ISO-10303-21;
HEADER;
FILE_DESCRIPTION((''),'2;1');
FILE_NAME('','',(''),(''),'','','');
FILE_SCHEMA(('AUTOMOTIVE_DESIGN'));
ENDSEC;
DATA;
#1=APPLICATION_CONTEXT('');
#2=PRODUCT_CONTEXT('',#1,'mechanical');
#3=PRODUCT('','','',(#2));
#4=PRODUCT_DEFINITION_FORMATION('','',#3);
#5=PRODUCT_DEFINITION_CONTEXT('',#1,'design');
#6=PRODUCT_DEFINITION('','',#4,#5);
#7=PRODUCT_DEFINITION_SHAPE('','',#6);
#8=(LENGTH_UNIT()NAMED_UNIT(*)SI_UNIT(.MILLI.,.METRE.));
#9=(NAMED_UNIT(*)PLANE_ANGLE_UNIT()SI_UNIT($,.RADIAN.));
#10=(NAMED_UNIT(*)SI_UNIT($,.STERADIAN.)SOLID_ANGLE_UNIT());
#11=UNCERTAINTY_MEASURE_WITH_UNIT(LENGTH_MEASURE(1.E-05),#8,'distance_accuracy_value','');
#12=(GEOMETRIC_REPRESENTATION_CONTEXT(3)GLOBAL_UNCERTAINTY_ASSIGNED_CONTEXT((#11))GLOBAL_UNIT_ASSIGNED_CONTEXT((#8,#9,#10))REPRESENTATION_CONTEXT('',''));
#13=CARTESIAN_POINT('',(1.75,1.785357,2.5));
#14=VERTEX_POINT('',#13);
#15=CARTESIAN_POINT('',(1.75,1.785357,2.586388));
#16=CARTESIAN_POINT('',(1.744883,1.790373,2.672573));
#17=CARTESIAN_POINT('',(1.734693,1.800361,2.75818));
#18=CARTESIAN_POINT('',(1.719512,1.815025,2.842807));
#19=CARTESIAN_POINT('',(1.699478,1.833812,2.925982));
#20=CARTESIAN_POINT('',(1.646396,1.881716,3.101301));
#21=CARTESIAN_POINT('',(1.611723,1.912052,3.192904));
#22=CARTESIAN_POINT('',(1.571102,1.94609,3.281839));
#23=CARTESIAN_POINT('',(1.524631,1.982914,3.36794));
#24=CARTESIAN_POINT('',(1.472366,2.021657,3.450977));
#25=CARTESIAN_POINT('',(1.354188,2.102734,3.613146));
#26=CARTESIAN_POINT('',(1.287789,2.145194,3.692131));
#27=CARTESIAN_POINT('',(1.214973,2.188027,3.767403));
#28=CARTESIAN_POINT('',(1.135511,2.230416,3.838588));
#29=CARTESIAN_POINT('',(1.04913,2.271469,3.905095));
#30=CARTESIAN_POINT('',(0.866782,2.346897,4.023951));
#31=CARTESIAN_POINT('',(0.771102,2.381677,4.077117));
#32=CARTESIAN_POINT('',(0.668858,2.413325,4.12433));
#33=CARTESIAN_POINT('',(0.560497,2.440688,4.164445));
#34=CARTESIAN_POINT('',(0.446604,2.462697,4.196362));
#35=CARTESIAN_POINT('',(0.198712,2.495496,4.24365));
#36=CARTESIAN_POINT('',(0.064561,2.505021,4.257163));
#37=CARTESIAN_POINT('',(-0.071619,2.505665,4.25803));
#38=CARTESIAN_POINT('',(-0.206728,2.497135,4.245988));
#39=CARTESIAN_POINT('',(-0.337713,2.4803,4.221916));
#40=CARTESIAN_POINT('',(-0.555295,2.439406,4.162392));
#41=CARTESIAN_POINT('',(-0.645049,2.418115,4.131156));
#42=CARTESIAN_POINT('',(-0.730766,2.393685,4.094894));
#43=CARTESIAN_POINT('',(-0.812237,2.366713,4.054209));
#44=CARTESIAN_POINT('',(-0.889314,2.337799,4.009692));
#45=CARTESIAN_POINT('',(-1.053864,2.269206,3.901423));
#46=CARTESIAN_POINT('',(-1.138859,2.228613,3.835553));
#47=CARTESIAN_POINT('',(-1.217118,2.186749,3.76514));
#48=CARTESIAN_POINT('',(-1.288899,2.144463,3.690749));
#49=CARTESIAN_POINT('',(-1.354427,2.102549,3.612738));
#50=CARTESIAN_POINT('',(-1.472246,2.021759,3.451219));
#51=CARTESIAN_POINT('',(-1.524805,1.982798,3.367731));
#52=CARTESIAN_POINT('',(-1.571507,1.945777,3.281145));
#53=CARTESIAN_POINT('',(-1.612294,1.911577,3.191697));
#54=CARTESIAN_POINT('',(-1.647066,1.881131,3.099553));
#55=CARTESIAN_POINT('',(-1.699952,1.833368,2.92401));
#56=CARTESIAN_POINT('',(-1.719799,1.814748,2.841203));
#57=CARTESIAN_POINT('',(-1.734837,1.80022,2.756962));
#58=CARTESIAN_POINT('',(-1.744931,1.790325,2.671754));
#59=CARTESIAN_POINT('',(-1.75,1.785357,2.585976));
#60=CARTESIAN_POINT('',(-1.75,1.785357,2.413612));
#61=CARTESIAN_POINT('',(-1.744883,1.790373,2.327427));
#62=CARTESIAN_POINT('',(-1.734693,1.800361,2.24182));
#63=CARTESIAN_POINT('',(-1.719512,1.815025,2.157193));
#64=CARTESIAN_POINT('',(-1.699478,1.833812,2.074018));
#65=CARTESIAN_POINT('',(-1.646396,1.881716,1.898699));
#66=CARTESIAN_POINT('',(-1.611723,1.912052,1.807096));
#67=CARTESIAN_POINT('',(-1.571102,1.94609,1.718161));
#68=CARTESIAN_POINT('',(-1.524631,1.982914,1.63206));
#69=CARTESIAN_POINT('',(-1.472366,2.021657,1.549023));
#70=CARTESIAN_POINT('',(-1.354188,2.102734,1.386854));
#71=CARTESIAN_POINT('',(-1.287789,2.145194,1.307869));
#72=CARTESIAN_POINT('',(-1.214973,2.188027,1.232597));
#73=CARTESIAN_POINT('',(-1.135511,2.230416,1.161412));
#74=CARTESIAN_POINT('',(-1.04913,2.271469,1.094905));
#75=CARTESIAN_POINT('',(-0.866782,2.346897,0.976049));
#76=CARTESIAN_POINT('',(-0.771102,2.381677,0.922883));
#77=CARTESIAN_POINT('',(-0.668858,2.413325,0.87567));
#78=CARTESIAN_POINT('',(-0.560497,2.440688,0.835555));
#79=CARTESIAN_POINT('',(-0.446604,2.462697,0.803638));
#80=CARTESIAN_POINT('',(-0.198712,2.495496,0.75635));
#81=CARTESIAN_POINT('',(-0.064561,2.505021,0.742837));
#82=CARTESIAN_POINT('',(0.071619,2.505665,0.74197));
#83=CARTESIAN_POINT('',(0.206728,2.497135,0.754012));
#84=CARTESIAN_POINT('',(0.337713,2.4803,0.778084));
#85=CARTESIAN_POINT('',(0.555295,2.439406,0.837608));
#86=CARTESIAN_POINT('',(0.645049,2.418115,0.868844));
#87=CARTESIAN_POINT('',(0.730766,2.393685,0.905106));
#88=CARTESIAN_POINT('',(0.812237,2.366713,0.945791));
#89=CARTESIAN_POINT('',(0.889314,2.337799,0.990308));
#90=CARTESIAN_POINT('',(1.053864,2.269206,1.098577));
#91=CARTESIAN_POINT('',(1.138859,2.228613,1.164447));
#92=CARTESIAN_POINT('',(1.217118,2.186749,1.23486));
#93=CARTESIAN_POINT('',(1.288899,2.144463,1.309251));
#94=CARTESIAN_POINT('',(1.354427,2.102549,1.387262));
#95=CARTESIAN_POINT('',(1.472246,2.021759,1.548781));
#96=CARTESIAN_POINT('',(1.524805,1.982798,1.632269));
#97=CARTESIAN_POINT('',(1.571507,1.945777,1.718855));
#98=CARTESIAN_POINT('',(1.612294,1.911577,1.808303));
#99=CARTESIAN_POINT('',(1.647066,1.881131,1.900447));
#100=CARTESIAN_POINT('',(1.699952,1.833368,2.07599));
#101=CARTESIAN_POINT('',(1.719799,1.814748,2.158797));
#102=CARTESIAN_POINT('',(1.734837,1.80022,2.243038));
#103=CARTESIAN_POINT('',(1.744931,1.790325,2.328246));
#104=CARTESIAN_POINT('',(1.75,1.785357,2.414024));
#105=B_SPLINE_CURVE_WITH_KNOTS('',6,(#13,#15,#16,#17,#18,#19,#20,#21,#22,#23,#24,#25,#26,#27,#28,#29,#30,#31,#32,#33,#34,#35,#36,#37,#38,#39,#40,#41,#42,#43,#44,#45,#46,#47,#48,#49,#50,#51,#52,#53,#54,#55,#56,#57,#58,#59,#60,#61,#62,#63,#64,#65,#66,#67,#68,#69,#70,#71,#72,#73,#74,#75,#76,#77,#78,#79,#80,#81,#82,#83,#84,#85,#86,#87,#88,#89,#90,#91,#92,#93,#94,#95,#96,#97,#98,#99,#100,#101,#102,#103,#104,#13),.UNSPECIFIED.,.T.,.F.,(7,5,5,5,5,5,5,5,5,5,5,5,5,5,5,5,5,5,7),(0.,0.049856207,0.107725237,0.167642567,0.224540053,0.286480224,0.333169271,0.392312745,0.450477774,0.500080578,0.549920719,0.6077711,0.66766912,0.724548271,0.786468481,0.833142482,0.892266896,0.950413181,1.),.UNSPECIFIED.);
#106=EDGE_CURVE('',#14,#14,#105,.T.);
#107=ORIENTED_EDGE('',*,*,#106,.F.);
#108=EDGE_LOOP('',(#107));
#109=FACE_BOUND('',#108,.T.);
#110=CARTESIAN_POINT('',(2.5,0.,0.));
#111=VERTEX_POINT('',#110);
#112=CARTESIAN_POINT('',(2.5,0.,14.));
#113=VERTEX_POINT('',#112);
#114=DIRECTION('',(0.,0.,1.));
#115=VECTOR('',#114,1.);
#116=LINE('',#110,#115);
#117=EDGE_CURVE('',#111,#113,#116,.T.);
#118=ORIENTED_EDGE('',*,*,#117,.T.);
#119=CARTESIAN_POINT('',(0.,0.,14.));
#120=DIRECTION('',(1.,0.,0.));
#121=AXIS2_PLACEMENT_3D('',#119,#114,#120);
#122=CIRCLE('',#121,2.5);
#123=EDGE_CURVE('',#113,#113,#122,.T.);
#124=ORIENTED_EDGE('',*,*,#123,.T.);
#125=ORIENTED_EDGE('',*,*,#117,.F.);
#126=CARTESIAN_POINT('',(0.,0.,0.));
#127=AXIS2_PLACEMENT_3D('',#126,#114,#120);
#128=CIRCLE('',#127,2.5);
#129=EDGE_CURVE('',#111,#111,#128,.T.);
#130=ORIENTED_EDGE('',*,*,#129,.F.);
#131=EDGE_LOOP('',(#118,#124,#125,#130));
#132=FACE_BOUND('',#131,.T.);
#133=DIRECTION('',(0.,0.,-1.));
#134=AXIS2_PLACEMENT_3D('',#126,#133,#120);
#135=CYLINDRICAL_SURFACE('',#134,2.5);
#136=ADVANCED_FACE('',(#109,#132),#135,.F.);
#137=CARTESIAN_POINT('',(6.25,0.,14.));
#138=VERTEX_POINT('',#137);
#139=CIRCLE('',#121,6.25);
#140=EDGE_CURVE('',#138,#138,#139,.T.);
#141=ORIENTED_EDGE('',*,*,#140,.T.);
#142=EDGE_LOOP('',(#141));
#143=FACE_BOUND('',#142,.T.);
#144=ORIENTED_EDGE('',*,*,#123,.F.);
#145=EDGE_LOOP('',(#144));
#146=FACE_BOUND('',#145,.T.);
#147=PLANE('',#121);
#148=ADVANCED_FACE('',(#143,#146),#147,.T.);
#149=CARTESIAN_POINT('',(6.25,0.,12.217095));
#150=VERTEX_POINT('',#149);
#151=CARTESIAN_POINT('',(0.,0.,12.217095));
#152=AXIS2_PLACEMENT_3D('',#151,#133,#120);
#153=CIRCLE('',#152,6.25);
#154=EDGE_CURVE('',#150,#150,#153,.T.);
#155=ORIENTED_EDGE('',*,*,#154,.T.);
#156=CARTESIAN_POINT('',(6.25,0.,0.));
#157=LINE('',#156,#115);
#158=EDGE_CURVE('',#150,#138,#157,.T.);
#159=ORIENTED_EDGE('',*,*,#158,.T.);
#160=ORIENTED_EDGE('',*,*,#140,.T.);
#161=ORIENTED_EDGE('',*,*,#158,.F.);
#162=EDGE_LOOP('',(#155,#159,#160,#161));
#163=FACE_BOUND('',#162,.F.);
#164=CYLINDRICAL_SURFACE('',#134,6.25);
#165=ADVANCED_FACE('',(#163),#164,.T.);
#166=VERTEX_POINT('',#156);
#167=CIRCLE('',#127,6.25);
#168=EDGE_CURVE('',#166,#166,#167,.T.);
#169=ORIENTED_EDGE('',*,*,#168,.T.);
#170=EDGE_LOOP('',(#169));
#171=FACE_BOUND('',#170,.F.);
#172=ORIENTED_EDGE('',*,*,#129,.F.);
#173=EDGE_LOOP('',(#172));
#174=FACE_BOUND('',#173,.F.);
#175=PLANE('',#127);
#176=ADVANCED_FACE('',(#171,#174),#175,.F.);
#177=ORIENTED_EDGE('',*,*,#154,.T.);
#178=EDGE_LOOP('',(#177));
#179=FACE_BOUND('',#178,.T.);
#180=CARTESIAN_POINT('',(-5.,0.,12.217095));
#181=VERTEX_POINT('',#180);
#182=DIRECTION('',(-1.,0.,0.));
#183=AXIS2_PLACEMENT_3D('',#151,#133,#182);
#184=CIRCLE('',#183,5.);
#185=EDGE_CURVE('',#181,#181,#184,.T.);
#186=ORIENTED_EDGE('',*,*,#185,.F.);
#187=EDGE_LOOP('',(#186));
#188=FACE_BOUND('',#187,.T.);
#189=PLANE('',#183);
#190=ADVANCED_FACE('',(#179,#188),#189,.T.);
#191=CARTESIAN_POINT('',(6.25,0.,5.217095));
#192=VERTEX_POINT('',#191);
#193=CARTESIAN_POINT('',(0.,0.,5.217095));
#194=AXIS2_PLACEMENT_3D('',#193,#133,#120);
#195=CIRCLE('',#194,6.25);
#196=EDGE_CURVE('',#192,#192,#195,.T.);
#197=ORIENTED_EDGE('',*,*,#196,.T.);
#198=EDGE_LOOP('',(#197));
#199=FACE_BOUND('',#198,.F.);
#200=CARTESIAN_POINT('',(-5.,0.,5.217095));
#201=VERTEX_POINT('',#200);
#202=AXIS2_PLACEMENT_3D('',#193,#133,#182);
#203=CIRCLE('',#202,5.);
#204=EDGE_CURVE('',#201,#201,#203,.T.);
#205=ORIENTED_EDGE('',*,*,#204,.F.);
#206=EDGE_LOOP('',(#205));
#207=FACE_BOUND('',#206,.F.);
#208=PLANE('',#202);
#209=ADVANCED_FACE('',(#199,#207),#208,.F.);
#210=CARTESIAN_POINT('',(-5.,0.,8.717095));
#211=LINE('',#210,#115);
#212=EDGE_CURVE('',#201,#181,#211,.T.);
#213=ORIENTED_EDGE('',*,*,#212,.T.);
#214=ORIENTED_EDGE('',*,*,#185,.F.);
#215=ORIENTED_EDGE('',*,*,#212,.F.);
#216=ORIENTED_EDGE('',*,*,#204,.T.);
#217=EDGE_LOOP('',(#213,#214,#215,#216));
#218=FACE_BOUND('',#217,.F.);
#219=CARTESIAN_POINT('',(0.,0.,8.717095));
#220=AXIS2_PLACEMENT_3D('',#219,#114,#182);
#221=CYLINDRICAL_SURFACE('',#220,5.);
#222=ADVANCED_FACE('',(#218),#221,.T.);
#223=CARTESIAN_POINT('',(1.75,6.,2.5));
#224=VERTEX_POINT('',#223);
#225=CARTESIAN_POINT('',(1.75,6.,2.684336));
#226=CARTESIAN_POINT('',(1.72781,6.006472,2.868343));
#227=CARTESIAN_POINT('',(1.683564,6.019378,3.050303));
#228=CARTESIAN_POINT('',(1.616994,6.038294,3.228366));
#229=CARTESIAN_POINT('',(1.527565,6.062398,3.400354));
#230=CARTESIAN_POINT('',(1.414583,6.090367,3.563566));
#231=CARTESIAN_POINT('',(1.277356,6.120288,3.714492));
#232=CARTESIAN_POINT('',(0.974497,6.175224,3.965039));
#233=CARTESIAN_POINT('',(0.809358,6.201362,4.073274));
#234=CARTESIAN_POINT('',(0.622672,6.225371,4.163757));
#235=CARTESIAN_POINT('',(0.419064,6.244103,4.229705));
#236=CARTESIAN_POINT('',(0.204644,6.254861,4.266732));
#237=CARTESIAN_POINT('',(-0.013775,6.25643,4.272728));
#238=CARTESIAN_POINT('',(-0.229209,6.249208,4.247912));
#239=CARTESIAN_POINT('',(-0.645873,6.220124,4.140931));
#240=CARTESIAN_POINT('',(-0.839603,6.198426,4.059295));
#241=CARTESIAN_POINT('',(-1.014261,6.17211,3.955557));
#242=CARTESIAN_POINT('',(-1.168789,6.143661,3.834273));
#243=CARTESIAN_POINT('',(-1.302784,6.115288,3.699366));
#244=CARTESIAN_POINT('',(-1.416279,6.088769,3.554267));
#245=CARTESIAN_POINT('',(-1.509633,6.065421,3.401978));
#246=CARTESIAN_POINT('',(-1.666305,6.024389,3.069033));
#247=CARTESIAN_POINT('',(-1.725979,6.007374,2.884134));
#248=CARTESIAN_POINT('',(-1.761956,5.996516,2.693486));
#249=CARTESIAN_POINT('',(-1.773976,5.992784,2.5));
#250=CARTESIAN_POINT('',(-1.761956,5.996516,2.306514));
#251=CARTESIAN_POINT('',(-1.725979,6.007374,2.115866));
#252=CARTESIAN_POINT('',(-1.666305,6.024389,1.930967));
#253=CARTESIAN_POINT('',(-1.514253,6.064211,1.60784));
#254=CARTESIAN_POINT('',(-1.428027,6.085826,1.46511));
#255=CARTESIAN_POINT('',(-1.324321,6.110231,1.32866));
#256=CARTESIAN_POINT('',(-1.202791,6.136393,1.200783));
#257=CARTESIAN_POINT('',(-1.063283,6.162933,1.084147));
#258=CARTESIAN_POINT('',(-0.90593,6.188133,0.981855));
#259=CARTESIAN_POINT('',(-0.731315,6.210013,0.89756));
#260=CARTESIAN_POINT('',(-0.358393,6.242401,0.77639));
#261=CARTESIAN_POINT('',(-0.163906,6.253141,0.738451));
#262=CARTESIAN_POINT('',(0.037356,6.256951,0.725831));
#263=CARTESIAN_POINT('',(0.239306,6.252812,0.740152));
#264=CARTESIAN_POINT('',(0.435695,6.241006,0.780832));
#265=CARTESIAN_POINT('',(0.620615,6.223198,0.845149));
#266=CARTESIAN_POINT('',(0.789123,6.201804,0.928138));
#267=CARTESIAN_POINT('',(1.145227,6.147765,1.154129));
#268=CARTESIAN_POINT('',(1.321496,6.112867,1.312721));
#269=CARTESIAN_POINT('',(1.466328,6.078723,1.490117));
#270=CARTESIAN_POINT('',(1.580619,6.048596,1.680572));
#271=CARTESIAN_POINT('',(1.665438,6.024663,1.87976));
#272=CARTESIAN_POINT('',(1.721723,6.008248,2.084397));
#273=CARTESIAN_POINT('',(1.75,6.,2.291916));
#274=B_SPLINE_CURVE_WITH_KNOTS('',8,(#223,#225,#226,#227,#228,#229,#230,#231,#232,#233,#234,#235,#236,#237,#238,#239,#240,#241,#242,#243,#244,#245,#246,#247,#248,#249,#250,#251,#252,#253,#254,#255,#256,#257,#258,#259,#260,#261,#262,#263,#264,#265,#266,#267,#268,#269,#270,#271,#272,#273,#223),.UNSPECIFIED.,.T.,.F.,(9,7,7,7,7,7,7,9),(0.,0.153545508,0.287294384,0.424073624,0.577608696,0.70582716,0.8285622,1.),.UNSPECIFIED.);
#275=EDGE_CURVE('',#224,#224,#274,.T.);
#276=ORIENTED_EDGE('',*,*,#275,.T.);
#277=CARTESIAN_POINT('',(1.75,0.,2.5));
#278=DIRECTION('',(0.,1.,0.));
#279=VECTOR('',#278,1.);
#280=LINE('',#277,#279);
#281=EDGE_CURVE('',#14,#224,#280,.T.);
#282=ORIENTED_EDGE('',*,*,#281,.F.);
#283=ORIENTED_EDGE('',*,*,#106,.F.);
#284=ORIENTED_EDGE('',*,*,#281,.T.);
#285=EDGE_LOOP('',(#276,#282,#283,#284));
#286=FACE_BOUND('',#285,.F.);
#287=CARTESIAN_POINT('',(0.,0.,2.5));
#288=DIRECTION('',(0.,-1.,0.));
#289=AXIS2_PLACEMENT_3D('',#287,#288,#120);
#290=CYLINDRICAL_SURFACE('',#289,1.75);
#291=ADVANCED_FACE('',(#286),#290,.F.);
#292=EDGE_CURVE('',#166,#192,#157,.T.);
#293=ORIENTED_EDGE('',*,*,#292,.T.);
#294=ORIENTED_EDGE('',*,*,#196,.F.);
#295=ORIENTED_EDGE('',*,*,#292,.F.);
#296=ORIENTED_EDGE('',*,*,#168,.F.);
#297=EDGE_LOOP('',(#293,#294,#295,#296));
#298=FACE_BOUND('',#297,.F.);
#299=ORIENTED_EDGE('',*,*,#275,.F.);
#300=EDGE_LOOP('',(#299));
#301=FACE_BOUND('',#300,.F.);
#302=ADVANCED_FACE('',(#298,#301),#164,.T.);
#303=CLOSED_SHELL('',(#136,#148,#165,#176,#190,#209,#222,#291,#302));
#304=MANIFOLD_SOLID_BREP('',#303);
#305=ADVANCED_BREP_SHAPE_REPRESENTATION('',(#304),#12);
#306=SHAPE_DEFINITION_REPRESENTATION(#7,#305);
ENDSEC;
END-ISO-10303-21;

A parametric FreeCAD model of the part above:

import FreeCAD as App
import Part
import Sketcher

V = App.Vector

doc = App.newDocument("Part")
body = doc.addObject("PartDesign::Body", "Body")

sketch1 = body.newObject("Sketcher::SketchObject", "Sketch")
sketch1.AttachmentSupport = (doc.getObject("XY_Plane"), [""])
sketch1.MapMode = "FlatFace"
sketch1.addGeometry(Part.Circle(V(0, 0, 0), V(0, 0, 1), 6.2), False)
sketch1.addGeometry(Part.Circle(V(0, 0, 0), V(0, 0, 1), 2.5), False)
sketch1.addConstraint(Sketcher.Constraint("Coincident", 0, 3, -1, 1))
sketch1.addConstraint(Sketcher.Constraint("Coincident", 1, 3, -1, 1))
sketch1.addConstraint(Sketcher.Constraint("Diameter", 1, 5.0))
sketch1.addConstraint(Sketcher.Constraint("Diameter", 0, 12.5))
pad1 = body.newObject("PartDesign::Pad", "Pad")
pad1.Profile = sketch1
pad1.Length = 14

sketch2 = body.newObject("Sketcher::SketchObject", "Sketch001")
sketch2.AttachmentSupport = (doc.getObject("XZ_Plane"), [""])
sketch2.MapMode = "FlatFace"
sketch2.addGeometry(Part.LineSegment(V(-8.7, 12.2, 0), V(-8.7, 5.2, 0)), False)
sketch2.addGeometry(Part.LineSegment(V(-8.7, 5.2, 0), V(-5, 5.2, 0)), False)
sketch2.addGeometry(Part.LineSegment(V(-5, 5.2, 0), V(-5, 12.2, 0)), False)
sketch2.addGeometry(Part.LineSegment(V(-5, 12.2, 0), V(-8.7, 12.2, 0)), False)
sketch2.addConstraint(Sketcher.Constraint("Coincident", 0, 2, 1, 1))
sketch2.addConstraint(Sketcher.Constraint("Coincident", 1, 2, 2, 1))
sketch2.addConstraint(Sketcher.Constraint("Coincident", 2, 2, 3, 1))
sketch2.addConstraint(Sketcher.Constraint("Coincident", 3, 2, 0, 1))
sketch2.addConstraint(Sketcher.Constraint("Vertical", 0))
sketch2.addConstraint(Sketcher.Constraint("Horizontal", 1))
sketch2.addConstraint(Sketcher.Constraint("Vertical", 2))
sketch2.addConstraint(Sketcher.Constraint("Horizontal", 3))
sketch2.addConstraint(Sketcher.Constraint("DistanceY", 0, 2, 0, 1, 7.0))
sketch2.addConstraint(Sketcher.Constraint("DistanceX", 1, 2, -1, 1, 5.0))
sketch2.addConstraint(Sketcher.Constraint("DistanceX", 1, 1, 1, 2, 3.733449))
sketch2.addConstraint(Sketcher.Constraint("DistanceY", -1, 1, 0, 2, 5.217095))
groove = body.newObject("PartDesign::Groove", "Groove")
groove.Profile = sketch2
groove.ReferenceAxis = (sketch2, ["V_Axis"])
groove.Angle = 360

sketch3 = body.newObject("Sketcher::SketchObject", "Sketch002")
sketch3.AttachmentSupport = (doc.getObject("XZ_Plane"), [""])
sketch3.MapMode = "FlatFace"
sketch3.addGeometry(Part.Circle(V(0, 2.5, 0), V(0, 0, 1), 1.8), False)
sketch3.addConstraint(Sketcher.Constraint("PointOnObject", 0, 3, -2))
sketch3.addConstraint(Sketcher.Constraint("Diameter", 0, 3.5))
sketch3.addConstraint(Sketcher.Constraint("DistanceY", -1, 1, 0, 3, 2.5))
pocket1 = body.newObject("PartDesign::Pocket", "Pocket")
pocket1.Profile = sketch3
pocket1.Length = 25

doc.recompute()
